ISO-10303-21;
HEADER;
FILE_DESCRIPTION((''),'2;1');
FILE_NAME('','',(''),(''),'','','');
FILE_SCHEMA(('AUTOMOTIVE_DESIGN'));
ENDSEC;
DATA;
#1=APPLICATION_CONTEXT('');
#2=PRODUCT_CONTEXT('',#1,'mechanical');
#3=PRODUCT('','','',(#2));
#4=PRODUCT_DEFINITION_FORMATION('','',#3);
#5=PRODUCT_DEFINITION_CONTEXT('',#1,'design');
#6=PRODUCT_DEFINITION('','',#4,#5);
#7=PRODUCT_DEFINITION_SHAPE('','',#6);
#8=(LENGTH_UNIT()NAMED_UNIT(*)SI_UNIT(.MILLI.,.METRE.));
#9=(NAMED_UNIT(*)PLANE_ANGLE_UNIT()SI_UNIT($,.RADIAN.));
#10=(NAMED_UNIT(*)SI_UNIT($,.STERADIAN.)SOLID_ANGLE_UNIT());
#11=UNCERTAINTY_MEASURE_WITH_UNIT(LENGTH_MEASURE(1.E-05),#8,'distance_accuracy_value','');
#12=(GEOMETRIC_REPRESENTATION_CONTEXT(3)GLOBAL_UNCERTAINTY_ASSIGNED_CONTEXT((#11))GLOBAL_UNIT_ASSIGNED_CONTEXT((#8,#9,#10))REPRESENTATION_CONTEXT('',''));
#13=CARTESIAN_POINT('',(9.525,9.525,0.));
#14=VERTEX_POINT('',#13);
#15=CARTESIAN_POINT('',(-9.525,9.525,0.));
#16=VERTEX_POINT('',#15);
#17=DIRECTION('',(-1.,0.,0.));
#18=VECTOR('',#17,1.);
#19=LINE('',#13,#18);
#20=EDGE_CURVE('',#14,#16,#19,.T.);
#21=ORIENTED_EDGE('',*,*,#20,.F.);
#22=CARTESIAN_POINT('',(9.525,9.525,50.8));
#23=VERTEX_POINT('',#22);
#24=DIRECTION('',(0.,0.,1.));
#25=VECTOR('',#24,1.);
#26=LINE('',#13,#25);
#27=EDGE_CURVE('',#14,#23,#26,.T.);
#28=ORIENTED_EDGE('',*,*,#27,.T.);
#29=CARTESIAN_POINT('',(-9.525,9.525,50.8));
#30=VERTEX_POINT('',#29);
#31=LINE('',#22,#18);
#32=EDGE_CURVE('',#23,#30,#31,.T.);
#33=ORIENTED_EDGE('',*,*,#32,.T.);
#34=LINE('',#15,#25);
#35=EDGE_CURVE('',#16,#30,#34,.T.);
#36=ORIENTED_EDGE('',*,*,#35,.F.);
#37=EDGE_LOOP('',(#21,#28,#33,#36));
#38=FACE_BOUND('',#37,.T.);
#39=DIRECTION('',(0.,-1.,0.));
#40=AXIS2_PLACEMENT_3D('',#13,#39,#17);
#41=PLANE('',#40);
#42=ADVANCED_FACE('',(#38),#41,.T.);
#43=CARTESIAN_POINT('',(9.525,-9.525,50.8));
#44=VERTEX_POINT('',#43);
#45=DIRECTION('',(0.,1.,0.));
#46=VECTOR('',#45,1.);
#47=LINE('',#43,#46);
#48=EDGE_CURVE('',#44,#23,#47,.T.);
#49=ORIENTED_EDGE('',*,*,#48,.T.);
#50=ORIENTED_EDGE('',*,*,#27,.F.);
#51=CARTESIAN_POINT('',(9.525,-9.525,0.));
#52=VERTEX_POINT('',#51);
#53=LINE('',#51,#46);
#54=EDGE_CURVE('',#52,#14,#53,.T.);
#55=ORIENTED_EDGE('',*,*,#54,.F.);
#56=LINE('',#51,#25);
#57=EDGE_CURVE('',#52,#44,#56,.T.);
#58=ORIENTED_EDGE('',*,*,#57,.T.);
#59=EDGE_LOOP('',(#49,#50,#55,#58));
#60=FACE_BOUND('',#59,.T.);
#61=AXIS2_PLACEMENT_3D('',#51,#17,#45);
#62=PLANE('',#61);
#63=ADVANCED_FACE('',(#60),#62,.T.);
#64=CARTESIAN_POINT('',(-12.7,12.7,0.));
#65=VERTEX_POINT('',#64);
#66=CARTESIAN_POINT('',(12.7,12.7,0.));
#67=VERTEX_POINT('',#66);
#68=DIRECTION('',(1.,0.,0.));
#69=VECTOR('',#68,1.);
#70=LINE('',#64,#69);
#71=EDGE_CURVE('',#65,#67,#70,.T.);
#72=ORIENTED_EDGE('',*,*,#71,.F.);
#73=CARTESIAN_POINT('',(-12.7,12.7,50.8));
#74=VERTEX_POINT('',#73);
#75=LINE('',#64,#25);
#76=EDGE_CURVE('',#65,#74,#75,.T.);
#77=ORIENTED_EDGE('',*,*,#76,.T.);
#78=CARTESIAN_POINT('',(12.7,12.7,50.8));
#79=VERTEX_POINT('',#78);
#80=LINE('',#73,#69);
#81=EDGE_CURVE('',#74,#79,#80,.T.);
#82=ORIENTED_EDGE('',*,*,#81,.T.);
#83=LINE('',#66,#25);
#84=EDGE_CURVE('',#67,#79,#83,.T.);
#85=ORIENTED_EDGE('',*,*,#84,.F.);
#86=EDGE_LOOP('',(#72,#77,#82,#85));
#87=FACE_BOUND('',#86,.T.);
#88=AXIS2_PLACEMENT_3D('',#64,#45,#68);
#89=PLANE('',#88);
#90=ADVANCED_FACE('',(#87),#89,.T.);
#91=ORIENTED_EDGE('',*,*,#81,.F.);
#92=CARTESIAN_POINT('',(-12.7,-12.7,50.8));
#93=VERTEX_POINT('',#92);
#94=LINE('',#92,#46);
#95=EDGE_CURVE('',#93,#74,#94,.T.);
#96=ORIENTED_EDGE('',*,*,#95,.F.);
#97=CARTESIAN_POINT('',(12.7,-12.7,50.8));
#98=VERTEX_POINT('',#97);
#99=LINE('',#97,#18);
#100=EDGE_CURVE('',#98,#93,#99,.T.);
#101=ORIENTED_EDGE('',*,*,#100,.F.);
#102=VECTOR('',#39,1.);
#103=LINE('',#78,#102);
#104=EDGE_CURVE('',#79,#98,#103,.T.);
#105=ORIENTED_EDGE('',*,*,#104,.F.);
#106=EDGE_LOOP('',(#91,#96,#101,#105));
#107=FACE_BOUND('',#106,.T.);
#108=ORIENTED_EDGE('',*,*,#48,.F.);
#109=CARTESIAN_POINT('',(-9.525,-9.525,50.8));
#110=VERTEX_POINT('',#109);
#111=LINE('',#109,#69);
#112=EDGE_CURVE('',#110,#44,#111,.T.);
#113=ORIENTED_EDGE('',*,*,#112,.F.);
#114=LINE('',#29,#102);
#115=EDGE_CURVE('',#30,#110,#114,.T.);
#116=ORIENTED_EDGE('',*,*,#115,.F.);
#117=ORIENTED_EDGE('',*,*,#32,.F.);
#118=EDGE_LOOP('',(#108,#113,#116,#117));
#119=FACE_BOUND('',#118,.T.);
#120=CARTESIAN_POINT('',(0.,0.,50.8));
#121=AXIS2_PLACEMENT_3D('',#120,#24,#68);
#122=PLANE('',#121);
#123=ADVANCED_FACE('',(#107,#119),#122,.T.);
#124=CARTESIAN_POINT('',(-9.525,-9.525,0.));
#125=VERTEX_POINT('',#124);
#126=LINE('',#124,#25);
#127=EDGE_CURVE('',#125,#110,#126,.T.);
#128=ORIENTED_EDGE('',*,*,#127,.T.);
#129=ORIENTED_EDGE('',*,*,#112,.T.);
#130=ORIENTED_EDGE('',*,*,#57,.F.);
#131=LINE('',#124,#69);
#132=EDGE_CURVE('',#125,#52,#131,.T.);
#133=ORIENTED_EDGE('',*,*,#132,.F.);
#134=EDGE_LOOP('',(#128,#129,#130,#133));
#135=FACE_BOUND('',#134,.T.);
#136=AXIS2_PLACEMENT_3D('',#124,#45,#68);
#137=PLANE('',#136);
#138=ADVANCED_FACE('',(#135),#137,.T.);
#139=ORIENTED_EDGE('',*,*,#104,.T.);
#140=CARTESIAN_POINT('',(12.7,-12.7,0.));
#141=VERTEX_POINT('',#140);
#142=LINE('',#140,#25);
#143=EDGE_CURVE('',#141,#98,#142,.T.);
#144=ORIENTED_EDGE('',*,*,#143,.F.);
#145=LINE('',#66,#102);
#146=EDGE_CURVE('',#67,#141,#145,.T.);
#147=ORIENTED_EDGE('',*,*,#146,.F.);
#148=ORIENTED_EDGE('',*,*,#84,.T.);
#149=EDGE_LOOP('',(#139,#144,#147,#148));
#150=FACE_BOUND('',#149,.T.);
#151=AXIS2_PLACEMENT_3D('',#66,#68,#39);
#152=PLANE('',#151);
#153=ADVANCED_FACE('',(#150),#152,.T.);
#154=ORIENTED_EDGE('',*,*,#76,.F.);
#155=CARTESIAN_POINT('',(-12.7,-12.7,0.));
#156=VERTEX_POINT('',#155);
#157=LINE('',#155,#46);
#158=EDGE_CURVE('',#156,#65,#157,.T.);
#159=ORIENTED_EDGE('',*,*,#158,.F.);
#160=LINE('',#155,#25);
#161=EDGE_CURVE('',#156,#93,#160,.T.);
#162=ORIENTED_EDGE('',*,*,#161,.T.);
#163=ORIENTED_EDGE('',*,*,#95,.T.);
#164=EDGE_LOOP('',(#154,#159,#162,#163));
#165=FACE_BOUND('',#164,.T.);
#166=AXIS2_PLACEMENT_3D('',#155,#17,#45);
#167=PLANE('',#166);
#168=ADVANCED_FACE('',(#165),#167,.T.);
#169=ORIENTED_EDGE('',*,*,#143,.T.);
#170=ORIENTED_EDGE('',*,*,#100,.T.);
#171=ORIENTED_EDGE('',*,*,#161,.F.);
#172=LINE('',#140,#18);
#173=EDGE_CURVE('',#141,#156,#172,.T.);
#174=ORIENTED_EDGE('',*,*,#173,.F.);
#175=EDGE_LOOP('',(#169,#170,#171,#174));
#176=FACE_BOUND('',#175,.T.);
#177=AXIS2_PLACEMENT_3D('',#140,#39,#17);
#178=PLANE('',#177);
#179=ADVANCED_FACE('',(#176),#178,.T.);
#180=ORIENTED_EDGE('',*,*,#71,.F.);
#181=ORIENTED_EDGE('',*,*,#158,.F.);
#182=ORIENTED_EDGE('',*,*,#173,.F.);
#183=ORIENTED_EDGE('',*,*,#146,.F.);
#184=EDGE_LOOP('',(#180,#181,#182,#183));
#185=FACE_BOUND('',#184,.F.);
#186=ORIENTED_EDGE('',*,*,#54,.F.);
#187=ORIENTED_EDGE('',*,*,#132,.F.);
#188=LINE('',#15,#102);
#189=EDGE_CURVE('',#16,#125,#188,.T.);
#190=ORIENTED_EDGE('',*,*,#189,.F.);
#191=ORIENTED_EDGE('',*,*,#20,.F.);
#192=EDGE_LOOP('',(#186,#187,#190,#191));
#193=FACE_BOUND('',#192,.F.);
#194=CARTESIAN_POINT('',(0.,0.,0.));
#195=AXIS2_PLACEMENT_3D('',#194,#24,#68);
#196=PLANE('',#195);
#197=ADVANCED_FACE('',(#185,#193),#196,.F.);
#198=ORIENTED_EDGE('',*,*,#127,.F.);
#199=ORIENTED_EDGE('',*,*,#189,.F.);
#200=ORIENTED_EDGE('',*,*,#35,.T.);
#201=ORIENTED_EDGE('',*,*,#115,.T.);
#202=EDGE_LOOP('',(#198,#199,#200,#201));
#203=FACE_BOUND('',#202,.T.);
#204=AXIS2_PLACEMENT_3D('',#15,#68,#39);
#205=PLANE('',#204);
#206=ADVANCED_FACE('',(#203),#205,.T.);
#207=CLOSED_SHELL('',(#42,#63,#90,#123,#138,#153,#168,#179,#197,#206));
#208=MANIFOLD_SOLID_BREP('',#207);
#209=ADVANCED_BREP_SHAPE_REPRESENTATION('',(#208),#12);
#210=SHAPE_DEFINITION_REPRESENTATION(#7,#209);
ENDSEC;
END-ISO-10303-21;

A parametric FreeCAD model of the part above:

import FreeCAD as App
import Part
import Sketcher
Q = App.Units.Quantity

doc = App.newDocument("Part")
params = doc.addObject("Spreadsheet::Sheet", "Params")
for row, (alias, value) in enumerate([
    ("sketch1_width", "1 in"),
    ("pad1_length", "2 in"),
], start=1):
    params.set(f"A{row}", alias)
    params.set(f"B{row}", "=" + value)
    params.setAlias(f"B{row}", alias)

body = doc.addObject("PartDesign::Body", "Body")

# Sketch on XY plane
sketch1 = body.newObject("Sketcher::SketchObject", "Sketch")
sketch1.AttachmentSupport = (doc.getObject("XY_Plane"), [""])
sketch1.MapMode = "FlatFace"
sketch1.addGeometry([
    Part.LineSegment(App.Vector(13, 13, 0), App.Vector(-13, 13, 0)),  # 0
    Part.LineSegment(App.Vector(-13, 13, 0), App.Vector(-13, -13, 0)),  # 1
    Part.LineSegment(App.Vector(-13, -13, 0), App.Vector(13, -13, 0)),  # 2
    Part.LineSegment(App.Vector(13, -13, 0), App.Vector(13, 13, 0)),  # 3
    Part.LineSegment(App.Vector(-10, 10, 0), App.Vector(10, 10, 0)),  # 4
    Part.LineSegment(App.Vector(10, 10, 0), App.Vector(10, -10, 0)),  # 5
    Part.LineSegment(App.Vector(10, -10, 0), App.Vector(-10, -10, 0)),  # 6
    Part.LineSegment(App.Vector(-10, -10, 0), App.Vector(-10, 10, 0)),  # 7
], False)
sketch1.addConstraint([
    Sketcher.Constraint("Coincident", 0, 2, 1, 1),
    Sketcher.Constraint("Coincident", 1, 2, 2, 1),
    Sketcher.Constraint("Coincident", 2, 2, 3, 1),
    Sketcher.Constraint("Coincident", 3, 2, 0, 1),
    Sketcher.Constraint("Coincident", 4, 2, 5, 1),
    Sketcher.Constraint("Coincident", 5, 2, 6, 1),
    Sketcher.Constraint("Coincident", 6, 2, 7, 1),
    Sketcher.Constraint("Coincident", 7, 2, 4, 1),
    Sketcher.Constraint("Horizontal", 0),
    Sketcher.Constraint("Vertical", 1),
    Sketcher.Constraint("Horizontal", 2),
    Sketcher.Constraint("Vertical", 3),
    Sketcher.Constraint("Horizontal", 4),
    Sketcher.Constraint("Vertical", 5),
    Sketcher.Constraint("Horizontal", 6),
    Sketcher.Constraint("Vertical", 7),
    Sketcher.Constraint("Symmetric", 0, 2, 2, 2, -1, 1),
    Sketcher.Constraint("Symmetric", 4, 2, 6, 2, -1, 1),
    Sketcher.Constraint("Equal", 2, 1),
    Sketcher.Constraint("Equal", 6, 5),
    Sketcher.Constraint("DistanceX", 0, 2, 0, 1, Q("1 in")),
    Sketcher.Constraint("DistanceX", 4, 2, 3, 2, Q("0.125 in")),
])
sketch1.setExpression("Constraints[20]", "Params.sketch1_width")
pad1 = body.newObject("PartDesign::Pad", "Pad")
pad1.Profile = sketch1
pad1.setExpression("Length", "Params.pad1_length")

doc.recompute()
